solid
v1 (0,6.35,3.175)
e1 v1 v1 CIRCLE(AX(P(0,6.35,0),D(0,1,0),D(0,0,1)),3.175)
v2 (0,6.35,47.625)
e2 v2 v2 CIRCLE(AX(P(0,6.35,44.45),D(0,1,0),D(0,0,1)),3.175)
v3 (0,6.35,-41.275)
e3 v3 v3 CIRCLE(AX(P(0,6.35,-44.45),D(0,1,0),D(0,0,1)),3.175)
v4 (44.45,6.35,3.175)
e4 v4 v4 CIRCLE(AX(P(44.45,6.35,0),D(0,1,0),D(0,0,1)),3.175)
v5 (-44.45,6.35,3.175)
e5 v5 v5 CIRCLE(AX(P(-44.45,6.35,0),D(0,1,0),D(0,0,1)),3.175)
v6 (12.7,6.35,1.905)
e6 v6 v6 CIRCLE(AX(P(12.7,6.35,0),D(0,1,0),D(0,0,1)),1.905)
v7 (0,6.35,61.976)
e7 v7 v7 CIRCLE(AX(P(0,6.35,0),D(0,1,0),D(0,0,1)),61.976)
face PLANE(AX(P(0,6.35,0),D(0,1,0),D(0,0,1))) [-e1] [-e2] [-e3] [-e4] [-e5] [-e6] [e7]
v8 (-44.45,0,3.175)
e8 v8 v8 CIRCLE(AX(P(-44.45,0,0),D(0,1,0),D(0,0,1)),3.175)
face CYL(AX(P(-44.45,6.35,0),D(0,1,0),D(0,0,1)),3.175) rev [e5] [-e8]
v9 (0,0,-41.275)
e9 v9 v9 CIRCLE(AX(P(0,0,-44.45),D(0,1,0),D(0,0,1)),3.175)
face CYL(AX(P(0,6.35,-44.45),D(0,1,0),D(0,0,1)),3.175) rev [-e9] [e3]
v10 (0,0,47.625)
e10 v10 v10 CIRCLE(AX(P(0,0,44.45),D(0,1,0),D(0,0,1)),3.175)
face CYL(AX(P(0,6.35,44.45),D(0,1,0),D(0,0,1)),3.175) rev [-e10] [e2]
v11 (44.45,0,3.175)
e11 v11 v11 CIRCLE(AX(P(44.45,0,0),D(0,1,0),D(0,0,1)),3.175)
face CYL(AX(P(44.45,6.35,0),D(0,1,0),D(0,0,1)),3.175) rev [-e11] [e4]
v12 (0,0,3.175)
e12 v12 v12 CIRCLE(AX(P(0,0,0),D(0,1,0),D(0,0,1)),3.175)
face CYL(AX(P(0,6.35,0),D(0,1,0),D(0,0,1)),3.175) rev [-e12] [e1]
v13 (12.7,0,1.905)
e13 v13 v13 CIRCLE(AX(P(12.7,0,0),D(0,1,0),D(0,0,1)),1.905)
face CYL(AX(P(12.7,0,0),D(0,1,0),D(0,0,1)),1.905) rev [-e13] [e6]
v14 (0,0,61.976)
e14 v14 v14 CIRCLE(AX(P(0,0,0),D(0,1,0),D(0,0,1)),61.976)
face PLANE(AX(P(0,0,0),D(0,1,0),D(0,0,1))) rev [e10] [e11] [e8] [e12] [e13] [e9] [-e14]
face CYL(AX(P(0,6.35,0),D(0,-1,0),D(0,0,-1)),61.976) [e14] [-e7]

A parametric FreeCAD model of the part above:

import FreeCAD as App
import Part
import Sketcher

V = App.Vector
Q = App.Units.Quantity

doc = App.newDocument("Part")
body = doc.addObject("PartDesign::Body", "Body")

sketch1 = body.newObject("Sketcher::SketchObject", "Sketch")
sketch1.AttachmentSupport = (doc.getObject("XZ_Plane"), [""])
sketch1.MapMode = "FlatFace"
sketch1.addGeometry(Part.Circle(V(0, 0, 0), V(0, 0, 1), 62), False)
sketch1.addConstraint([
    Sketcher.Constraint("Coincident", 0, 3, -1, 1),
    Sketcher.Constraint("Diameter", 0, Q("4.88 in")),
])
pad1 = body.newObject("PartDesign::Pad", "Pad")
pad1.Profile = sketch1
pad1.Length = Q("0.25 in")
pad1.Reversed = True

sketch2 = body.newObject("Sketcher::SketchObject", "Sketch001")
sketch2.AttachmentSupport = (doc.getObject("XZ_Plane"), [""])
sketch2.MapMode = "FlatFace"
sketch2.AttachmentOffset = App.Placement(V(0, 0, -0.25 * 25.4), App.Rotation())
sketch2.addGeometry([
    Part.Circle(V(0, -44.5, 0), V(0, 0, 1), 3.2),
    Part.Circle(V(44.5, 0, 0), V(0, 0, 1), 3.2),
    Part.Circle(V(0, 44.5, 0), V(0, 0, 1), 3.2),
    Part.Circle(V(-44.5, 0, 0), V(0, 0, 1), 3.2),
    Part.Circle(V(0, 0, 0), V(0, 0, 1), 3.2),
], False)
sketch2.addConstraint([
    Sketcher.Constraint("Coincident", 4, 3, -1, 1),
    Sketcher.Constraint("Equal", 0, 1),
    Sketcher.Constraint("Equal", 1, 2),
    Sketcher.Constraint("Equal", 2, 3),
    Sketcher.Constraint("Equal", 3, 4),
    Sketcher.Constraint("Symmetric", 0, 3, 2, 3, -1, 1),
    Sketcher.Constraint("Symmetric", 1, 3, 3, 3, -1, 1),
    Sketcher.Constraint("PointOnObject", 0, 3, -2),
    Sketcher.Constraint("PointOnObject", 1, 3, -1),
    Sketcher.Constraint("Diameter", 0, Q("0.25 in")),
    Sketcher.Constraint("DistanceY", 0, 3, 2, 3, Q("3.5 in")),
    Sketcher.Constraint("DistanceX", 3, 3, 1, 3, Q("3.5 in")),
])
doc.recompute()
hole = body.newObject("PartDesign::Hole", "Hole")
hole.Profile = sketch2
hole.ThreadType = "None"
hole.Diameter = Q("0.25 in")
hole.DepthType = "Dimension"
hole.Depth = Q("1.77 in")
hole.DrillPoint = "Flat"
hole.Reversed = True

sketch3 = body.newObject("Sketcher::SketchObject", "Sketch002")
sketch3.AttachmentSupport = (doc.getObject("XZ_Plane"), [""])
sketch3.MapMode = "FlatFace"
sketch3.AttachmentOffset = App.Placement(V(0, 0, -0.25 * 25.4), App.Rotation())
sketch3.addGeometry(Part.Circle(V(12.7, 0, 0), V(0, 0, 1), 1.9), False)
sketch3.addConstraint([
    Sketcher.Constraint("PointOnObject", 0, 3, -1),
    Sketcher.Constraint("Diameter", 0, Q("0.15 in")),
    Sketcher.Constraint("DistanceX", -1, 1, 0, 3, Q("0.5 in")),
])
pocket1 = body.newObject("PartDesign::Pocket", "Pocket")
pocket1.Profile = sketch3
pocket1.Type = "ThroughAll"
pocket1.Reversed = True

doc.recompute()
